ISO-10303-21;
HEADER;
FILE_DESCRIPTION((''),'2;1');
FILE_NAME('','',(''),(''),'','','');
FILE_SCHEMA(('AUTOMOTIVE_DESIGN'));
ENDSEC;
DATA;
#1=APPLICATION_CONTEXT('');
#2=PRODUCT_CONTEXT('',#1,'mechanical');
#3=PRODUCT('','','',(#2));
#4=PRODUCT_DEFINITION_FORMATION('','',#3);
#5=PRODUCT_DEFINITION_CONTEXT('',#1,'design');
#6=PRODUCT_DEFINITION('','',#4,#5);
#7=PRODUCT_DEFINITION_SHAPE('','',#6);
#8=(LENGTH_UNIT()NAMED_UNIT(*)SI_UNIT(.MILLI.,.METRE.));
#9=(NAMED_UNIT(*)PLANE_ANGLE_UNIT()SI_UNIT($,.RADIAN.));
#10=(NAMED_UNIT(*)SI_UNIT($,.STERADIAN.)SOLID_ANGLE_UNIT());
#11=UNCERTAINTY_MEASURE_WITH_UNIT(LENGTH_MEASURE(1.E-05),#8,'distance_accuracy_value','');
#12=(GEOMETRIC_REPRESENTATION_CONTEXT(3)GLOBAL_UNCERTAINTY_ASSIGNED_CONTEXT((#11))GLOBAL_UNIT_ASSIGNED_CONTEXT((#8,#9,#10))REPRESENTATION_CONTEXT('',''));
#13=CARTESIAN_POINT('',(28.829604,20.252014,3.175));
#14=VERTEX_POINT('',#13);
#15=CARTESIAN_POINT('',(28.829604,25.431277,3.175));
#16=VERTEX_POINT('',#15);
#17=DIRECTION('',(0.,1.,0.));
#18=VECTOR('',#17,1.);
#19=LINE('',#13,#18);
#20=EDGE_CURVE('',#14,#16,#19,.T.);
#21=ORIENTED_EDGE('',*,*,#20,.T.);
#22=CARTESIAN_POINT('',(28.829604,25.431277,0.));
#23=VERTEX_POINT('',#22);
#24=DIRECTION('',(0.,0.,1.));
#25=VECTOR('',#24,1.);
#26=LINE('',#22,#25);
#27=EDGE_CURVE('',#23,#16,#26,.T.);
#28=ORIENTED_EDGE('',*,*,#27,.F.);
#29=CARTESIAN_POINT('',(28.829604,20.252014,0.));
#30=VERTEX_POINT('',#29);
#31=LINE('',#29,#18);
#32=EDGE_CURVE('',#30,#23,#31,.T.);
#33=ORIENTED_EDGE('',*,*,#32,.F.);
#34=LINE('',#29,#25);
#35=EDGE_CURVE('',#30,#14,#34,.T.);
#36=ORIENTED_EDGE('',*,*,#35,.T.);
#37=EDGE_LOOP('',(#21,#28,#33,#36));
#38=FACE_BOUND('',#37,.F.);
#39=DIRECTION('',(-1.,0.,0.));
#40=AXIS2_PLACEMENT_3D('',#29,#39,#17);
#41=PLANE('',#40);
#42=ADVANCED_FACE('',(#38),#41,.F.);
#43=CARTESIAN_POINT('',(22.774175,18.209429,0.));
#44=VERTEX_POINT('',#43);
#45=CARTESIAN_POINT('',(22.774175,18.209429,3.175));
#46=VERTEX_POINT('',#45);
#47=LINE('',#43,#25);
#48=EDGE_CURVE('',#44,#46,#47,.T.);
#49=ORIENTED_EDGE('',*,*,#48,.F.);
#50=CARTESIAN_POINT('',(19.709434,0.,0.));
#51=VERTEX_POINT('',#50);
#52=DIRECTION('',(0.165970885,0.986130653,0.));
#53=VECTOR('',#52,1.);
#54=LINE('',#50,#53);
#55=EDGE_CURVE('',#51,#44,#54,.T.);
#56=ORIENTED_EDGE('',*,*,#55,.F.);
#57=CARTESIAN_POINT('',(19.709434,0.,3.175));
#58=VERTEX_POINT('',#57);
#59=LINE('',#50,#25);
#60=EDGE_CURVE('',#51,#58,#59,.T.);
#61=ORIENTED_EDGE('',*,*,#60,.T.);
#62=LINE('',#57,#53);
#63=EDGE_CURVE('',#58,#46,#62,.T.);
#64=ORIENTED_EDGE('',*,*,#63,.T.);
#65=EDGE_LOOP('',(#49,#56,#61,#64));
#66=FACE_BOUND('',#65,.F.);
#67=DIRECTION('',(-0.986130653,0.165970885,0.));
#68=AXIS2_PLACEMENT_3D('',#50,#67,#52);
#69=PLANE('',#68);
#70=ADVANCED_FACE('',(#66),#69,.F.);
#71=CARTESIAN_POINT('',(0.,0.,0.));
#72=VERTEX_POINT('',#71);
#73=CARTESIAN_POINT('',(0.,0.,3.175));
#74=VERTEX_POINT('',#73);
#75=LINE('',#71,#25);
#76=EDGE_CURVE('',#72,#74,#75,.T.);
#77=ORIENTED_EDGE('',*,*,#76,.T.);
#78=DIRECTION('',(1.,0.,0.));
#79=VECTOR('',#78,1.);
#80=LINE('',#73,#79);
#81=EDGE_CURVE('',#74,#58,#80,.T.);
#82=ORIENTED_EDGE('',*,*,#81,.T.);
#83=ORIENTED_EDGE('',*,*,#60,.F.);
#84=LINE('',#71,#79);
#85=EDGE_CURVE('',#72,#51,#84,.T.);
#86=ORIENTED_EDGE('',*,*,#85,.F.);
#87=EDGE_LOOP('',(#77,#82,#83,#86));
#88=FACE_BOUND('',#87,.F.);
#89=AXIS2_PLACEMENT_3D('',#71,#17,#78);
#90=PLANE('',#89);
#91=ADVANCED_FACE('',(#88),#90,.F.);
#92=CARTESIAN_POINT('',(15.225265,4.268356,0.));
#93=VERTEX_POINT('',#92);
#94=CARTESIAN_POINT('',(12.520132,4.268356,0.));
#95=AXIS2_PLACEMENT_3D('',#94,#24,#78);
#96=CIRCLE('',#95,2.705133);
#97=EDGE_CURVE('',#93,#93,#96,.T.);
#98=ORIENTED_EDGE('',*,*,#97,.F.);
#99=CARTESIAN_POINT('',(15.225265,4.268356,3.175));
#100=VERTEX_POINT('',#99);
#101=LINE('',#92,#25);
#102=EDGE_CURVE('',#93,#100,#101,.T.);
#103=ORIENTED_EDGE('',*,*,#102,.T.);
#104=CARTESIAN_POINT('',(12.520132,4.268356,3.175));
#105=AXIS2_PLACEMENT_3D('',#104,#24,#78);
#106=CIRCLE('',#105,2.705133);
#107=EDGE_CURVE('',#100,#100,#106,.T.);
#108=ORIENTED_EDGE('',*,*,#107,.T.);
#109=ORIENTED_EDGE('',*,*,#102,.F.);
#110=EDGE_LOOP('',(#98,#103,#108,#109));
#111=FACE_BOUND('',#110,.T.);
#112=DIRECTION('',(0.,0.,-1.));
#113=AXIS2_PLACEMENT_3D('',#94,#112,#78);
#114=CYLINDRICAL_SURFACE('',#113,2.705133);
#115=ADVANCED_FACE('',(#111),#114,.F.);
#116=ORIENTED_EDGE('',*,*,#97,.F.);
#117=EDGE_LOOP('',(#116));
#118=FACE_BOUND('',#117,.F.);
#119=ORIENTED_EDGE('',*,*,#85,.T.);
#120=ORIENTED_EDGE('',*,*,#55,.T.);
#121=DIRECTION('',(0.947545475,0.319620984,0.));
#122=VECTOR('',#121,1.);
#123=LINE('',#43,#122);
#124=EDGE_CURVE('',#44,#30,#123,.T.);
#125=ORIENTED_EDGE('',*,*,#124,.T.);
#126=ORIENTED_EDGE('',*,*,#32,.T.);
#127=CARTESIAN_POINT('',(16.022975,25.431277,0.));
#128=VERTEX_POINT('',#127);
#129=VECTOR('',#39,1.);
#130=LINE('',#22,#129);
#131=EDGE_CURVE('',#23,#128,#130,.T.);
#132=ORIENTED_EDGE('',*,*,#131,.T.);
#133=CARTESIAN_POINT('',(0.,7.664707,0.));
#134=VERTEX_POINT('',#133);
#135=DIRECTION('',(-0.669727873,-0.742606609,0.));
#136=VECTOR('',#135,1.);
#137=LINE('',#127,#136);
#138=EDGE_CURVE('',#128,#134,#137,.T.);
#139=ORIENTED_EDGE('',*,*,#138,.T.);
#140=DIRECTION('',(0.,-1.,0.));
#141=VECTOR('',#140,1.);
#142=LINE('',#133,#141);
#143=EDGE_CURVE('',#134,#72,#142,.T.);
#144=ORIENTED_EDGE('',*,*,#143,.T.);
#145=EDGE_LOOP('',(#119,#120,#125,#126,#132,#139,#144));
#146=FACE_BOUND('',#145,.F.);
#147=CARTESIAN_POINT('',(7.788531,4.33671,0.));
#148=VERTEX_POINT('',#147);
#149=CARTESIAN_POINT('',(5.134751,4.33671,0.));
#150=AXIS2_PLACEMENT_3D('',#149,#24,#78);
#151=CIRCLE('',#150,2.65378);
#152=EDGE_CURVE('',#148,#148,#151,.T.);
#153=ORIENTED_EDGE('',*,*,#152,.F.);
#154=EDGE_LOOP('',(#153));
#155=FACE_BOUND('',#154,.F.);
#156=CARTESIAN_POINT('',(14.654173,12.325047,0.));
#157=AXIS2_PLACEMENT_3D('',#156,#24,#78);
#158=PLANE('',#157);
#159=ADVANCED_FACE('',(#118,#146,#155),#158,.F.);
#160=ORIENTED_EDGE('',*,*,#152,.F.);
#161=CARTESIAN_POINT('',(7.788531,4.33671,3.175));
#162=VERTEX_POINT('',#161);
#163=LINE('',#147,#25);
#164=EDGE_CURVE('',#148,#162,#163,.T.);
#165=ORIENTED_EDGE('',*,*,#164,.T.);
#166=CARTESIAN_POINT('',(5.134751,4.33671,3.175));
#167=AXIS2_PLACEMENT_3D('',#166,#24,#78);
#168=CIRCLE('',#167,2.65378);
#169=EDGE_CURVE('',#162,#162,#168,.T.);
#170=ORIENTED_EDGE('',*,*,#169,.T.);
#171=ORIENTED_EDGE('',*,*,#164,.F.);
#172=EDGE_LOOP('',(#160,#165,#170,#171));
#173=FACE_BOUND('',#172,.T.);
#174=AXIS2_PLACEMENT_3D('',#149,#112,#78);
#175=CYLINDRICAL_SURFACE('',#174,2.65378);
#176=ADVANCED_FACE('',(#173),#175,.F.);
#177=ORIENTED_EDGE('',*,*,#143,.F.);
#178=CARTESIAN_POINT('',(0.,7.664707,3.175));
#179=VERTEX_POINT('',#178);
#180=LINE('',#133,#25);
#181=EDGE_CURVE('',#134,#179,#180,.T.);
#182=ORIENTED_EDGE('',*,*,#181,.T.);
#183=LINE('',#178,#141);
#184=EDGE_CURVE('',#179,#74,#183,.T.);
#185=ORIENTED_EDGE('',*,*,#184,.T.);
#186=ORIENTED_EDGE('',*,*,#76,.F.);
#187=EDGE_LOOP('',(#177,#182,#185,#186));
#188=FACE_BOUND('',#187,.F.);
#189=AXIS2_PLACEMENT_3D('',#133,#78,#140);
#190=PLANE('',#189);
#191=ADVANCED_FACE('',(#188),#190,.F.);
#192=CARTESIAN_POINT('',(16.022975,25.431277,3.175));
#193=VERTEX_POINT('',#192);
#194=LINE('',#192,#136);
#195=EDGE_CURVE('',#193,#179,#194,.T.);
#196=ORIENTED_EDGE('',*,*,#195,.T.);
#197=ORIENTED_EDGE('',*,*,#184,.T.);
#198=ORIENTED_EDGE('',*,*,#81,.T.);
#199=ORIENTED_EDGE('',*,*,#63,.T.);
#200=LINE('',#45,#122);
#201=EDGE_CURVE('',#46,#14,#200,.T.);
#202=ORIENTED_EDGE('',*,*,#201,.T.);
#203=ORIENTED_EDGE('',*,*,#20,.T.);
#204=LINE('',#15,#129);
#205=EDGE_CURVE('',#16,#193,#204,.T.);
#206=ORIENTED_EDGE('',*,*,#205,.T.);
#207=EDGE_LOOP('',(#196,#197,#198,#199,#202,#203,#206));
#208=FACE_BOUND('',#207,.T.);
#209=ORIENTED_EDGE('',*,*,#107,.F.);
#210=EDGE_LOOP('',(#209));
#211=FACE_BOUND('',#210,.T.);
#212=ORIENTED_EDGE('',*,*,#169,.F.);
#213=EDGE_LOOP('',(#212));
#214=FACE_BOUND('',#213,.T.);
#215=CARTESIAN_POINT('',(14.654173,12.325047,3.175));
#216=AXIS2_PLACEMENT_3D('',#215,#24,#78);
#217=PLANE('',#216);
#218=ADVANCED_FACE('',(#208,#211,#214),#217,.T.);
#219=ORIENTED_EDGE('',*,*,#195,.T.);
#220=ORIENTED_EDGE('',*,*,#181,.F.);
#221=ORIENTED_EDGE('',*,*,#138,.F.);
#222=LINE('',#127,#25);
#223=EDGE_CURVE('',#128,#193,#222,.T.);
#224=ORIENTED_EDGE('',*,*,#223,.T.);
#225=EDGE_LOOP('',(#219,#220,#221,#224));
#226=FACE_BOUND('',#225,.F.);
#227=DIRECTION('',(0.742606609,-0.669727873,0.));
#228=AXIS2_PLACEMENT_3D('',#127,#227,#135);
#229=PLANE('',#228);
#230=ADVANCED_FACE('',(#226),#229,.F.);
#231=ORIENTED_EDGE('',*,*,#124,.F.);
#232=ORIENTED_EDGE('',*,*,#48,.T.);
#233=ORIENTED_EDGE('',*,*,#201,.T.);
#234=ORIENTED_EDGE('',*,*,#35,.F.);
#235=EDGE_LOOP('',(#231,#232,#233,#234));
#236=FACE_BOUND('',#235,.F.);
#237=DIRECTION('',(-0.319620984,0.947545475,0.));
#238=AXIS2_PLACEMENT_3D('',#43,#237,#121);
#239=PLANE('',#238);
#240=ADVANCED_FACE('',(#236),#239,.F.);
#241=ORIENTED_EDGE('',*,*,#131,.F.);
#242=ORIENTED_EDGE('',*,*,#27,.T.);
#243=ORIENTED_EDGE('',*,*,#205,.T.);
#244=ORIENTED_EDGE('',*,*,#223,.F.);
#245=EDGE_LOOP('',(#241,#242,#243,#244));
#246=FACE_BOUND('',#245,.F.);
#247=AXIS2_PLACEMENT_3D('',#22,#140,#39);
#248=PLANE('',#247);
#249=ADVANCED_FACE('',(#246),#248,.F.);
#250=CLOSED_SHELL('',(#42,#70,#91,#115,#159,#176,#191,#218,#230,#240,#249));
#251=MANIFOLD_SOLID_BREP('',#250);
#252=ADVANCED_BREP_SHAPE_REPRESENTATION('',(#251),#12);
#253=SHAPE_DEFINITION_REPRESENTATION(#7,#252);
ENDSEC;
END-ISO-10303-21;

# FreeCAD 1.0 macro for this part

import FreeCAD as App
import Part
import Sketcher

V = App.Vector
Q = App.Units.Quantity

doc = App.newDocument("Part")
body = doc.addObject("PartDesign::Body", "Body")

# Sketch on XY plane
sketch1 = doc.addObject("Sketcher::SketchObject", "Sketch")
body.addObject(sketch1)
sketch1.AttachmentSupport = (doc.XY_Plane, [""])
sketch1.MapMode = "FlatFace"
sketch1.addGeometry(Part.LineSegment(V(0, 7.7, 0), V(0, 0, 0)), False)
sketch1.addGeometry(Part.LineSegment(V(0, 0, 0), V(19.7, 0, 0)), False)
sketch1.addGeometry(Part.LineSegment(V(19.7, 0, 0), V(22.8, 18.2, 0)), False)
sketch1.addGeometry(Part.LineSegment(V(22.8, 18.2, 0), V(28.8, 20.3, 0)), False)
sketch1.addGeometry(Part.LineSegment(V(28.8, 20.3, 0), V(28.8, 25.4, 0)), False)
sketch1.addGeometry(Part.LineSegment(V(28.8, 25.4, 0), V(16, 25.4, 0)), False)
sketch1.addGeometry(Part.LineSegment(V(16, 25.4, 0), V(0, 7.7, 0)), False)
sketch1.addGeometry(Part.Circle(V(12.5, 4.3, 0), V(0, 0, 1), 2.7), False)
sketch1.addGeometry(Part.Circle(V(5.1, 4.3, 0), V(0, 0, 1), 2.7), False)
sketch1.addConstraint(Sketcher.Constraint("Coincident", 0, 2, 1, 1))
sketch1.addConstraint(Sketcher.Constraint("Coincident", 1, 2, 2, 1))
sketch1.addConstraint(Sketcher.Constraint("Coincident", 2, 2, 3, 1))
sketch1.addConstraint(Sketcher.Constraint("Coincident", 3, 2, 4, 1))
sketch1.addConstraint(Sketcher.Constraint("Coincident", 4, 2, 5, 1))
sketch1.addConstraint(Sketcher.Constraint("Coincident", 5, 2, 6, 1))
sketch1.addConstraint(Sketcher.Constraint("Coincident", 6, 2, 0, 1))
sketch1.addConstraint(Sketcher.Constraint("Vertical", 0))
sketch1.addConstraint(Sketcher.Constraint("Horizontal", 1))
sketch1.addConstraint(Sketcher.Constraint("Vertical", 4))
sketch1.addConstraint(Sketcher.Constraint("Horizontal", 5))
sketch1.addConstraint(Sketcher.Constraint("Coincident", 0, 2, -1, 1))
sketch1.addConstraint(Sketcher.Constraint("Angle", 3, Q("18.640005 deg")))
sketch1.addConstraint(Sketcher.Constraint("Diameter", 8, 5.30756))
sketch1.addConstraint(Sketcher.Constraint("Diameter", 7, 5.410266))
sketch1.addConstraint(Sketcher.Constraint("DistanceX", 5, 2, 5, 1, 12.806629))
sketch1.addConstraint(Sketcher.Constraint("DistanceX", 5, 2, 2, 2, 6.7512))
sketch1.addConstraint(Sketcher.Constraint("DistanceX", 1, 1, 1, 2, 19.709434))
sketch1.addConstraint(Sketcher.Constraint("DistanceY", 0, 2, 0, 1, 7.664707))
sketch1.addConstraint(Sketcher.Constraint("DistanceY", 4, 1, 4, 2, 5.179263))
sketch1.addConstraint(Sketcher.Constraint("DistanceX", -1, 1, 8, 3, 5.134751))
sketch1.addConstraint(Sketcher.Constraint("DistanceY", -1, 1, 8, 3, 4.33671))
sketch1.addConstraint(Sketcher.Constraint("DistanceY", -1, 1, 2, 2, 18.209429))
sketch1.addConstraint(Sketcher.Constraint("DistanceX", 8, 3, 7, 3, 7.385381))
sketch1.addConstraint(Sketcher.Constraint("DistanceX", 1, 2, 2, 2, 3.064741))
sketch1.addConstraint(Sketcher.Constraint("DistanceY", 7, 3, 4, 2, 21.162921))
pad1 = doc.addObject("PartDesign::Pad", "Pad")
body.addObject(pad1)
pad1.Profile = sketch1
pad1.Length = Q("0.125 in")

doc.recompute()
